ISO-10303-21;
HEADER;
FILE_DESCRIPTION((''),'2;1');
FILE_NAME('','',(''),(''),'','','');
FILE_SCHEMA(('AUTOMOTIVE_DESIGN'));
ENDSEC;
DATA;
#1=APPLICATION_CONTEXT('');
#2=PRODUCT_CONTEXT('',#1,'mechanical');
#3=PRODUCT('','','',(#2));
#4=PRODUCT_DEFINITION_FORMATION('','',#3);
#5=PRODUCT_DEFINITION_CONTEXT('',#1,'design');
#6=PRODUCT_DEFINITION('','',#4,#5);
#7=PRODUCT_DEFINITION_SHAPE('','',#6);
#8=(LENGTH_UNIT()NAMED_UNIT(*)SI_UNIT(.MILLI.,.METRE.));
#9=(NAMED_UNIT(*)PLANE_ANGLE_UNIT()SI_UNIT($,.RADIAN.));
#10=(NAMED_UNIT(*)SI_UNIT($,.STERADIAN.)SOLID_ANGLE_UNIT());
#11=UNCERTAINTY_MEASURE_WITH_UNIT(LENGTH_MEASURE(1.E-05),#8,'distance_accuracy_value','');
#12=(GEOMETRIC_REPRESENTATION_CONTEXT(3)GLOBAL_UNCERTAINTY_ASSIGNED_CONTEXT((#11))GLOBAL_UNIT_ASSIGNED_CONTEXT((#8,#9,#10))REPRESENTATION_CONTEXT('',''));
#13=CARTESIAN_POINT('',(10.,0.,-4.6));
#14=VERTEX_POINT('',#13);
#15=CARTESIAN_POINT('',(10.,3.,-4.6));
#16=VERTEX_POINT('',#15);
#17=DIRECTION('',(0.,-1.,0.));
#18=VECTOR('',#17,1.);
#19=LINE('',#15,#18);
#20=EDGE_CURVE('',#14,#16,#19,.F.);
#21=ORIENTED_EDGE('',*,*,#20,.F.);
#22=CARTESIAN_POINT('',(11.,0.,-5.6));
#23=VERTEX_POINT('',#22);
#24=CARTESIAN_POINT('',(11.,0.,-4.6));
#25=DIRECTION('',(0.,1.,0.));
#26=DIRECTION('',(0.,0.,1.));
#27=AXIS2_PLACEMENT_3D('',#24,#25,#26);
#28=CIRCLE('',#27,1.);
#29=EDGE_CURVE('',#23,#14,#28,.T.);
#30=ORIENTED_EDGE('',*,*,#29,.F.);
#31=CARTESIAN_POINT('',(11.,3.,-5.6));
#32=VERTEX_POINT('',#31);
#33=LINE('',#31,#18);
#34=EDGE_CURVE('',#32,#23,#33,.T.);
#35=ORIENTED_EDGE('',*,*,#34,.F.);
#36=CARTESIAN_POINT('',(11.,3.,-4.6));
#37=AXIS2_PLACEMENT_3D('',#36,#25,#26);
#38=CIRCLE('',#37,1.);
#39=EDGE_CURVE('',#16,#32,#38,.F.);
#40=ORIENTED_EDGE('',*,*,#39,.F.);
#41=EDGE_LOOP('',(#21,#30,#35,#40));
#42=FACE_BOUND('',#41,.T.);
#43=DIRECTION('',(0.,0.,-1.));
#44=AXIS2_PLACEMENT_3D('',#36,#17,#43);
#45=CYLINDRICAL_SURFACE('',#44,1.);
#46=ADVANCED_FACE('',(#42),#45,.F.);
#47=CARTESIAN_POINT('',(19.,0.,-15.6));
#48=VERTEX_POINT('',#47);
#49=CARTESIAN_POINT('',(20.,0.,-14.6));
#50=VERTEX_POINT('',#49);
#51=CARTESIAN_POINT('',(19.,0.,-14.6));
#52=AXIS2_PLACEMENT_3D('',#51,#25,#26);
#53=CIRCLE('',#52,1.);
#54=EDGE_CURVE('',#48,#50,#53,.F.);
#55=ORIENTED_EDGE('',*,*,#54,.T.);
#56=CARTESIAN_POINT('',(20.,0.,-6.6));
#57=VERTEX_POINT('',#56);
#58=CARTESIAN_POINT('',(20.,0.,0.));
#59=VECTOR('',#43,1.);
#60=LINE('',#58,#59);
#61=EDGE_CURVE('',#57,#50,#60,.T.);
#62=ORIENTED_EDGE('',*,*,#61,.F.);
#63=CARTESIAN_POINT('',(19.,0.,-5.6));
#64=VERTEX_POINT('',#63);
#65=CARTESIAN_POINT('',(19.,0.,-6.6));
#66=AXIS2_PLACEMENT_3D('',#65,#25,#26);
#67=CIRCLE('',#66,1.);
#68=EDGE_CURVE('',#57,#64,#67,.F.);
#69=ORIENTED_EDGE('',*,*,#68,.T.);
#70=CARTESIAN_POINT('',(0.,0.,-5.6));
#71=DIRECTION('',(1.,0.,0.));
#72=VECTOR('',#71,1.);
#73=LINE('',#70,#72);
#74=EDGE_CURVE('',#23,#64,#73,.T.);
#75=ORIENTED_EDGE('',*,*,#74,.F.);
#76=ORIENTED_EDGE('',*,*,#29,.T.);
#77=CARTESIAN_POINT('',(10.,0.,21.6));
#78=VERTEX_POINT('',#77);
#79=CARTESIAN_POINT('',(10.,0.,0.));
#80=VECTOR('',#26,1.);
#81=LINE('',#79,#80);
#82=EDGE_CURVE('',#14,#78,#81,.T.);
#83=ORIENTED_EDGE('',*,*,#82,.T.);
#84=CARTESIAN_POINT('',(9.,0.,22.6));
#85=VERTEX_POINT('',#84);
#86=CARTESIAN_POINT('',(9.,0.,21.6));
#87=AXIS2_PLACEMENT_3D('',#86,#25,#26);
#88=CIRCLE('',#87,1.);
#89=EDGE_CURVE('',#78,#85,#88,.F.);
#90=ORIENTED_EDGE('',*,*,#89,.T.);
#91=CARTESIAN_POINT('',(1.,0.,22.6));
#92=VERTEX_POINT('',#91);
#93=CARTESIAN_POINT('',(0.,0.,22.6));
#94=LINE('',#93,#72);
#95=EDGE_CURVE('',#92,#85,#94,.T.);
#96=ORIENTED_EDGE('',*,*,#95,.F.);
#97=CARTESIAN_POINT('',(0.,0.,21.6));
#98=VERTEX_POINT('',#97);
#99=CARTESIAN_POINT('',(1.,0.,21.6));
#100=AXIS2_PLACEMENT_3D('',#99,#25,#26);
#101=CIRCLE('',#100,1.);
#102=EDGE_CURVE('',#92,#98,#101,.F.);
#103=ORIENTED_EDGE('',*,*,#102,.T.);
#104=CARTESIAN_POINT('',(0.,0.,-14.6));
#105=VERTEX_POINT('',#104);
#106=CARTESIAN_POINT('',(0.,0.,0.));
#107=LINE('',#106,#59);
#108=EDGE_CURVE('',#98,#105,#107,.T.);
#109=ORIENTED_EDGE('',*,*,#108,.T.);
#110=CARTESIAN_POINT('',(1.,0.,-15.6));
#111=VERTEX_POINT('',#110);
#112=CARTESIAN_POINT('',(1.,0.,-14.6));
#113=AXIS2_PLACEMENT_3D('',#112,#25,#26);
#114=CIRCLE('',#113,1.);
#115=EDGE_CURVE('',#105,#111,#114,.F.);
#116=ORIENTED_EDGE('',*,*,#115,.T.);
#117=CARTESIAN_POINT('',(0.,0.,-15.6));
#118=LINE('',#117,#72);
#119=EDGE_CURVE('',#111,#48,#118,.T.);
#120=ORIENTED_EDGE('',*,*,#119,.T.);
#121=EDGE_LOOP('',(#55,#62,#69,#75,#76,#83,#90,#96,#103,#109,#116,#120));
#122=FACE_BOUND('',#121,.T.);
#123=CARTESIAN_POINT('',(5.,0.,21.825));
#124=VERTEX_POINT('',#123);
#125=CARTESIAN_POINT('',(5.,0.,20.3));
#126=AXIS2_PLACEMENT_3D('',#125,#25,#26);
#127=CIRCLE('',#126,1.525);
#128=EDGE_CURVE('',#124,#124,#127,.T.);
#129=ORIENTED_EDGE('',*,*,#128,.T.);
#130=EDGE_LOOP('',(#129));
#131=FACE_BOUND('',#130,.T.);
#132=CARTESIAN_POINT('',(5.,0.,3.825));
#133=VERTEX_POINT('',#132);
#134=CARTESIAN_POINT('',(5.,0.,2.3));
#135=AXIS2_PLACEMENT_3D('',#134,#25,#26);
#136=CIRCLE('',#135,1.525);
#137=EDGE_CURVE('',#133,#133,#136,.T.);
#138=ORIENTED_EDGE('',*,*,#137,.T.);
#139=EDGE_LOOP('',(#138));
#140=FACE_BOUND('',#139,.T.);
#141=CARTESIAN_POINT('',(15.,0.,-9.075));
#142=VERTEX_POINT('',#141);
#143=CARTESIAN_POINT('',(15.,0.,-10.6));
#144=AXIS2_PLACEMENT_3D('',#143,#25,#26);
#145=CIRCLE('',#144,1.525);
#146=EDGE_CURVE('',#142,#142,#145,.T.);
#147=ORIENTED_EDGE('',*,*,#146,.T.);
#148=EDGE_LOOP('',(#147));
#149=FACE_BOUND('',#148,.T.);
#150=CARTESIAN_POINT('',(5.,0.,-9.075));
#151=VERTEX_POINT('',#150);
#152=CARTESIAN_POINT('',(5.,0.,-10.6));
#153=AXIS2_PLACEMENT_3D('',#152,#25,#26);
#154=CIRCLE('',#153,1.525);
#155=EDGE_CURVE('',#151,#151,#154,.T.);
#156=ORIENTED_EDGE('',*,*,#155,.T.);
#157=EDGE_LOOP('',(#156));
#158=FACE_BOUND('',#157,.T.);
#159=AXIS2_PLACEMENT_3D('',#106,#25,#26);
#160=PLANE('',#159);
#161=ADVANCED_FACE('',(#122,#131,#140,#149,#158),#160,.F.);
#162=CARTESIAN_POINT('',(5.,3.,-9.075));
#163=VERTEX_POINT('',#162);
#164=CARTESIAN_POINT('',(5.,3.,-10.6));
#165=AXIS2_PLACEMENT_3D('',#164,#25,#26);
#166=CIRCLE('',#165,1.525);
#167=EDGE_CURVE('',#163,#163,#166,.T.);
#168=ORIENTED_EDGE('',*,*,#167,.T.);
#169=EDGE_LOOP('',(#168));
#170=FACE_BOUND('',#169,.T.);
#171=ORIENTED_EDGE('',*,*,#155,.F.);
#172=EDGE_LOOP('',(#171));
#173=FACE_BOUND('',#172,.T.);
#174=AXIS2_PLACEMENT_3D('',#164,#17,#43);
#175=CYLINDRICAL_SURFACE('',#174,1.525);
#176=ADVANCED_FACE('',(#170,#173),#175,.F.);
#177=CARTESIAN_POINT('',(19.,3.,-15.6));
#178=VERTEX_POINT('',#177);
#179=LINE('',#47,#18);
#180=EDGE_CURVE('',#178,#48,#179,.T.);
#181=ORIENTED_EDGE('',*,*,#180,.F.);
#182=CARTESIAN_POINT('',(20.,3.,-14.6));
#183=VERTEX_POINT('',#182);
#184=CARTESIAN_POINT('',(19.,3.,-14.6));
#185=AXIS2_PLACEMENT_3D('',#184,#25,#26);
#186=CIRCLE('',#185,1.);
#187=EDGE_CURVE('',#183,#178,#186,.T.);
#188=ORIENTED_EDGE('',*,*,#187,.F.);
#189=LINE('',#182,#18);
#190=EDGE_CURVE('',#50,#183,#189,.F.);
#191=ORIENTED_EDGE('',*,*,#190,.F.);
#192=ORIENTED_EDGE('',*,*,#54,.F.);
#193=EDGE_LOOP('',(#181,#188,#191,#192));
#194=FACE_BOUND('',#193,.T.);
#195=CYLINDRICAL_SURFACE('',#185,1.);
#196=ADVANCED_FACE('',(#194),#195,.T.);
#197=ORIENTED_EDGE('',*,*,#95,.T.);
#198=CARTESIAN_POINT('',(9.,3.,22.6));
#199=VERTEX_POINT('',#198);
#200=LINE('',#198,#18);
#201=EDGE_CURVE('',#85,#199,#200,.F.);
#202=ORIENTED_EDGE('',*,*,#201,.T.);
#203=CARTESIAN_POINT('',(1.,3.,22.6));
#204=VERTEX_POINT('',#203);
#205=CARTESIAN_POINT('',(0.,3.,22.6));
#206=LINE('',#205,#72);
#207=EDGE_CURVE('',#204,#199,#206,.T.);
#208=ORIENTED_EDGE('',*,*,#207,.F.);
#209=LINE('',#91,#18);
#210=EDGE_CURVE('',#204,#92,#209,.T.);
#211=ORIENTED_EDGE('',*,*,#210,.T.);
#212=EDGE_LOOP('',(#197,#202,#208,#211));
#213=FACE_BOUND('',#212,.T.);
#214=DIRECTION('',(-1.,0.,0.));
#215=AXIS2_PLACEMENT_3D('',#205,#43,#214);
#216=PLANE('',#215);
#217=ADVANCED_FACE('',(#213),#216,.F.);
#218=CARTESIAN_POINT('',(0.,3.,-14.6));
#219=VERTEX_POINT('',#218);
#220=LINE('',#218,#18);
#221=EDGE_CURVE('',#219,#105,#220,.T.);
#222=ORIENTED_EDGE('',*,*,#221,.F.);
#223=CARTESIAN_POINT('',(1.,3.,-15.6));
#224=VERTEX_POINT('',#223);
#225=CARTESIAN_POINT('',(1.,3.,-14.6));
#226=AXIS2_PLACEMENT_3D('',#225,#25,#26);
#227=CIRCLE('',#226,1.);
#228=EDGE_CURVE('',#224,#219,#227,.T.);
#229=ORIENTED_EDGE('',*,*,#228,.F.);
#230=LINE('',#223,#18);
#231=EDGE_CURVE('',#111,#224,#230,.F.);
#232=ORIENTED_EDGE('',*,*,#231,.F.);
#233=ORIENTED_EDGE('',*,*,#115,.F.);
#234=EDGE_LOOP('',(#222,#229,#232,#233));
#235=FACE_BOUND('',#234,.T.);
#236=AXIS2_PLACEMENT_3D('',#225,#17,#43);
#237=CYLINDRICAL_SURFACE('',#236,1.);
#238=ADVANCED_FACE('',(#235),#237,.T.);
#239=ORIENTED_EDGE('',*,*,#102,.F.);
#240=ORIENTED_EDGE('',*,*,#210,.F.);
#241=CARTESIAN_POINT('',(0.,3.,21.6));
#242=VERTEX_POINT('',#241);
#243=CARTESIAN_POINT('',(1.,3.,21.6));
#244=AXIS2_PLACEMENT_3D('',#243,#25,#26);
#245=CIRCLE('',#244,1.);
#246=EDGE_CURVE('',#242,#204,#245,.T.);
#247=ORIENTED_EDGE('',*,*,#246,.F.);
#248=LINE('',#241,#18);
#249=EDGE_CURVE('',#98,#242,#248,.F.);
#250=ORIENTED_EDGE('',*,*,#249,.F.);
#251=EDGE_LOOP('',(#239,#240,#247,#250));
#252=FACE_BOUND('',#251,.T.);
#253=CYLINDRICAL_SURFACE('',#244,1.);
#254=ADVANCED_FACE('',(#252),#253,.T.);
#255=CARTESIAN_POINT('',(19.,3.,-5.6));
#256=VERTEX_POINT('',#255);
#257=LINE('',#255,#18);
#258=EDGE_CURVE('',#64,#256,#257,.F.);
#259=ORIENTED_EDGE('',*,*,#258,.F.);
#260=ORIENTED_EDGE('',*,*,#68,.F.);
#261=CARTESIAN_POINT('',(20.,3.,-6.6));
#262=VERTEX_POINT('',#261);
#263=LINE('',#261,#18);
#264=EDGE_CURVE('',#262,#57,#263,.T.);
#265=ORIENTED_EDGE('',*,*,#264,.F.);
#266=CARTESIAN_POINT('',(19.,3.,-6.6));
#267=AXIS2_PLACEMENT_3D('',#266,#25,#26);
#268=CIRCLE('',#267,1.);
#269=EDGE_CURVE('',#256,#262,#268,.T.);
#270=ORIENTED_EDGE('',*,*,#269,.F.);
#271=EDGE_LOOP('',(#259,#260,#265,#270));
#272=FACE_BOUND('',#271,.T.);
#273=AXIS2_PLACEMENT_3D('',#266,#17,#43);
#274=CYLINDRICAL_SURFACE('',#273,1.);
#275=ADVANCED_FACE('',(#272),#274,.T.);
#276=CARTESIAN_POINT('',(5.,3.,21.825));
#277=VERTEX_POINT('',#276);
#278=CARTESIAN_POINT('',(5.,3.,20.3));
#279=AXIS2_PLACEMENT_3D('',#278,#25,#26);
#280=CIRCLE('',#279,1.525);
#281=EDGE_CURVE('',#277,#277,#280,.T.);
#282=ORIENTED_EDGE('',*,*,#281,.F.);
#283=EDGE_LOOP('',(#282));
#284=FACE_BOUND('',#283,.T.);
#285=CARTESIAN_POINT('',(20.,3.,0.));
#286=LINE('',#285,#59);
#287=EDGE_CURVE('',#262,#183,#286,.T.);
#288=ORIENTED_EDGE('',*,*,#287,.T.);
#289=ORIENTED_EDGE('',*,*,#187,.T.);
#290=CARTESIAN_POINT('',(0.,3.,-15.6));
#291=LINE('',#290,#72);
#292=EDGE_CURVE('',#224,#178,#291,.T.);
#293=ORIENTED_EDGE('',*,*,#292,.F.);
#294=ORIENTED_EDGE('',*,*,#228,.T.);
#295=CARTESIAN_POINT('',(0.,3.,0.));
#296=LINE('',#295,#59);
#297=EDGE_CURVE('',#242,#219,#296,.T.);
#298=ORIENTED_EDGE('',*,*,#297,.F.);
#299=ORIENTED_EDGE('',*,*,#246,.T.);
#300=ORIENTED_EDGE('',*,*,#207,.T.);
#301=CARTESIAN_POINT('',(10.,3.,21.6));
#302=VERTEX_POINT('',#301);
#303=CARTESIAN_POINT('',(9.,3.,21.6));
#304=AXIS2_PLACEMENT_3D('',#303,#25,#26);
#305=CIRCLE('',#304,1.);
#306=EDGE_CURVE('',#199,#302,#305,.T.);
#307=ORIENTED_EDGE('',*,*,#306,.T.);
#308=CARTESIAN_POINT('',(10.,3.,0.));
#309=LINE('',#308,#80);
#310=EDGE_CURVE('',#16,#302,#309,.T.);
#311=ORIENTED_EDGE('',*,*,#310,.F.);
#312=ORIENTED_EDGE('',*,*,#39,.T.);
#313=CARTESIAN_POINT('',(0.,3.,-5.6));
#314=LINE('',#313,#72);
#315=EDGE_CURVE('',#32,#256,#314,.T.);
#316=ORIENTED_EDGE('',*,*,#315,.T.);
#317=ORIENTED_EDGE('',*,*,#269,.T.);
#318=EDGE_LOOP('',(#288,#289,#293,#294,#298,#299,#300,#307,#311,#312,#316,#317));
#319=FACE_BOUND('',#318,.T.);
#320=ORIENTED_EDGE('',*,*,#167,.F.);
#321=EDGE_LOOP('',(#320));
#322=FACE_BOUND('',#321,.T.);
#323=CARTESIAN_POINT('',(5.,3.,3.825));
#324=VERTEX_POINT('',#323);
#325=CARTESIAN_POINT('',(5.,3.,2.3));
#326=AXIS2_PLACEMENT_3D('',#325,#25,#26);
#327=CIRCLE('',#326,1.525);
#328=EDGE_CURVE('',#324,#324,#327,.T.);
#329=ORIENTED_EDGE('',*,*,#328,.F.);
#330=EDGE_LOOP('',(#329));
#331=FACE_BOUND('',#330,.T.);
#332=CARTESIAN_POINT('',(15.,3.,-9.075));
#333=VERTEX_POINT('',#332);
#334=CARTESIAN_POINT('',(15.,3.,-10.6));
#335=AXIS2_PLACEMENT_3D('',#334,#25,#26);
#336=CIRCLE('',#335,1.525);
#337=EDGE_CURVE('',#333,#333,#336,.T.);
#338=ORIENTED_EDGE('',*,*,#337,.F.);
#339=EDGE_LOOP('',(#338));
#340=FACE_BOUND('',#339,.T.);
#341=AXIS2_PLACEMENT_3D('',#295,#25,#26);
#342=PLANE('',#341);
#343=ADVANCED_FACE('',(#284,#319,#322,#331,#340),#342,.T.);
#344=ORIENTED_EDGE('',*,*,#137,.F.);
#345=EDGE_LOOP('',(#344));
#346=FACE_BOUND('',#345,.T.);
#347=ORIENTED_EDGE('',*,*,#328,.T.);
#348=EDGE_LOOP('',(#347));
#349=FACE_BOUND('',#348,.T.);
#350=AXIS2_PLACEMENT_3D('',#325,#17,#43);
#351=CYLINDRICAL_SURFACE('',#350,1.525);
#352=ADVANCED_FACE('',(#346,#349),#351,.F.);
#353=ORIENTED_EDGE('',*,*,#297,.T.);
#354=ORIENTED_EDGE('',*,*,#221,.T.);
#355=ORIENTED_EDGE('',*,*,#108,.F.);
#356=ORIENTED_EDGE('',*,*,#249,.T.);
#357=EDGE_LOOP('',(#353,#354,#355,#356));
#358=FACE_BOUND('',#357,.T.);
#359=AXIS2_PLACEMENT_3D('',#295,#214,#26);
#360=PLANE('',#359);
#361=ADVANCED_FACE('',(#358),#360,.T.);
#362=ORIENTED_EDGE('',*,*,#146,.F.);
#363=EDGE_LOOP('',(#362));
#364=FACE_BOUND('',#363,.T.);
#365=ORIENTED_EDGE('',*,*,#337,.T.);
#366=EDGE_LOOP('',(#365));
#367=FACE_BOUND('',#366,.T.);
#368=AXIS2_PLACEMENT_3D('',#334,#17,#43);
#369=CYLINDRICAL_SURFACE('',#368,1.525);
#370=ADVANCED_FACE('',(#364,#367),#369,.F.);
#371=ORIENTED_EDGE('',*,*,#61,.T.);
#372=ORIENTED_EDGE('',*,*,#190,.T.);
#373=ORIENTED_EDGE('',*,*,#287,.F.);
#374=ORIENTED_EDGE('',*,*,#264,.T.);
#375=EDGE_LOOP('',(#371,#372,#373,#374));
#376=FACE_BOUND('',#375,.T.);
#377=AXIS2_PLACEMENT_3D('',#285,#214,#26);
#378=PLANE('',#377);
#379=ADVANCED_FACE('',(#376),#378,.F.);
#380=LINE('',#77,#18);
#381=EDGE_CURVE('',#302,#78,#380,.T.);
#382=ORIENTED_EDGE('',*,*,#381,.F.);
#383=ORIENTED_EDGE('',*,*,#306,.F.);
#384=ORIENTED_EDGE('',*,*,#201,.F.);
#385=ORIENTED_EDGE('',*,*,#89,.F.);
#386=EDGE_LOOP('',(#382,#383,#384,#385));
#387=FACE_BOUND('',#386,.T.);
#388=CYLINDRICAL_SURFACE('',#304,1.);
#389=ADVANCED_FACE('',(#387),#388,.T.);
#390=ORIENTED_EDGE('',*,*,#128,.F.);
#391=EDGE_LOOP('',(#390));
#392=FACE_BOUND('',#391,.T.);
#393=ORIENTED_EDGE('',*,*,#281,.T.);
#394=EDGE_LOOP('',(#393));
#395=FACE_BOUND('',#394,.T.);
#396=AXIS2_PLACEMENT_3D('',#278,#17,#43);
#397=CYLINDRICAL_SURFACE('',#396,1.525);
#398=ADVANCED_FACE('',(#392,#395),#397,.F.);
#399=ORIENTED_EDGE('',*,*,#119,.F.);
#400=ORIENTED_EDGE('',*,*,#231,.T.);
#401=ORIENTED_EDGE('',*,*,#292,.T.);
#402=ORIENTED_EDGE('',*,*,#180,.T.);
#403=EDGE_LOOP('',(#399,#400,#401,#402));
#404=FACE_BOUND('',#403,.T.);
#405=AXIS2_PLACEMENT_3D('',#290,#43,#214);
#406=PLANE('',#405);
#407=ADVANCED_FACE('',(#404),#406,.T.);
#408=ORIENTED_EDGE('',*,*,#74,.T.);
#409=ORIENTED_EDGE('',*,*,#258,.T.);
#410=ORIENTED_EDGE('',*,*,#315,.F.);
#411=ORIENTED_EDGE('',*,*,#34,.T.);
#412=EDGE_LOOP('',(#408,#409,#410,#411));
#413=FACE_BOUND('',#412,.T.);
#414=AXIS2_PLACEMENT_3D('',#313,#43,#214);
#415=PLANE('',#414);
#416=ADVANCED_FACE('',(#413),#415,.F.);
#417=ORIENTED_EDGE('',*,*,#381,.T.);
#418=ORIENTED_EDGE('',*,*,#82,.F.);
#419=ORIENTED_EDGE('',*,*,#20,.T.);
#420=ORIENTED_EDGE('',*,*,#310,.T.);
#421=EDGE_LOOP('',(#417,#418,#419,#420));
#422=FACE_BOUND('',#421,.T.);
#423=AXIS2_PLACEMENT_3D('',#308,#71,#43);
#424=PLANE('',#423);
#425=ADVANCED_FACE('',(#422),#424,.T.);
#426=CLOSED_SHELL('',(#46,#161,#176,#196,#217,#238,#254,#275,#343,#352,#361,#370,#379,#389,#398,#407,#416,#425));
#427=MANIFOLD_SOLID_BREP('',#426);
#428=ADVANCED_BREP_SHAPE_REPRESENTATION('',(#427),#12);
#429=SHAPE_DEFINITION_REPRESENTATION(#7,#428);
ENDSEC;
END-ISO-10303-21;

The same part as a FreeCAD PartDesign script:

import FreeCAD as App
import Part
import Sketcher

V = App.Vector


def edges_at(feature, points):
    """Names of the edges that pass closest to the given points."""
    edges = feature.Shape.Edges
    near = lambda p: min(range(len(edges)), key=lambda i: edges[i].distToShape(Part.Vertex(*p))[0])
    return sorted({f"Edge{near(p) + 1}" for p in points})


def add_polygon(sketch, points):
    """Adds a closed chain of lines whose ends are joined by coincident constraints."""
    first, n = sketch.GeometryCount, len(points)
    for a, b in zip(points, points[1:] + points[:1]):
        sketch.addGeometry(Part.LineSegment(App.Vector(*a, 0), App.Vector(*b, 0)), False)
    for i in range(n):
        sketch.addConstraint(Sketcher.Constraint("Coincident", first + i, 2, first + (i + 1) % n, 1))

doc = App.newDocument("Part")
body = doc.addObject("PartDesign::Body", "Body")

sketch1 = body.newObject("Sketcher::SketchObject", "Sketch")
sketch1.AttachmentSupport = (doc.getObject("XZ_Plane"), [""])
sketch1.MapMode = "FlatFace"
add_polygon(sketch1, [(10, -5.6), (20, -5.6), (20, -15.6), (0, -15.6), (0, 22.6), (10, 22.6)])
sketch1.addGeometry(Part.Circle(V(5, 20.3, 0), V(0, 0, 1), 1.5), False)
sketch1.addGeometry(Part.Circle(V(5, 2.3, 0), V(0, 0, 1), 1.5), False)
sketch1.addGeometry(Part.Circle(V(5, -10.6, 0), V(0, 0, 1), 1.5), False)
sketch1.addGeometry(Part.Circle(V(15, -10.6, 0), V(0, 0, 1), 1.5), False)
sketch1.addConstraint([
    Sketcher.Constraint("Horizontal", 0),
    Sketcher.Constraint("Vertical", 1),
    Sketcher.Constraint("Horizontal", 2),
    Sketcher.Constraint("Vertical", 3),
    Sketcher.Constraint("Horizontal", 4),
    Sketcher.Constraint("Vertical", 5),
    Sketcher.Constraint("Equal", 6, 7),
    Sketcher.Constraint("Equal", 7, 8),
    Sketcher.Constraint("Equal", 8, 9),
    Sketcher.Constraint("PointOnObject", 2, 2, -2),
    Sketcher.Constraint("Horizontal", 8, 3, 9, 3),
    Sketcher.Constraint("Vertical", 6, 3, 7, 3),
    Sketcher.Constraint("Vertical", 7, 3, 8, 3),
    Sketcher.Constraint("Equal", 0, 4),
    Sketcher.Constraint("Equal", 4, 1),
    Sketcher.Constraint("Diameter", 6, 3.05),
    Sketcher.Constraint("DistanceX", 0, 1, 0, 2, 10.0),
    Sketcher.Constraint("DistanceY", 3, 1, 3, 2, 38.2),
    Sketcher.Constraint("DistanceX", -1, 1, 6, 3, 5.0),
    Sketcher.Constraint("DistanceX", -1, 1, 9, 3, 15.0),
    Sketcher.Constraint("DistanceY", 7, 3, 6, 3, 18.0),
    Sketcher.Constraint("DistanceY", 9, 3, 0, 2, 5.0),
    Sketcher.Constraint("DistanceY", -1, 1, 6, 3, 20.3),
    Sketcher.Constraint("DistanceY", 8, 3, -1, 1, 10.6),
])
pad1 = body.newObject("PartDesign::Pad", "Pad")
pad1.Profile = sketch1
pad1.Length = 3
pad1.Reversed = True
doc.recompute()

fillet = body.newObject("PartDesign::Fillet", "Fillet")
fillet.Base = (pad1, edges_at(pad1, [
    (10, 1.5, 22.6),
    (0, 1.5, 22.6),
    (0, 1.5, -15.6),
    (20, 1.5, -15.6),
    (20, 1.5, -5.6),
    (10, 1.5, -5.6),
]))
fillet.Radius = 1

doc.recompute()
